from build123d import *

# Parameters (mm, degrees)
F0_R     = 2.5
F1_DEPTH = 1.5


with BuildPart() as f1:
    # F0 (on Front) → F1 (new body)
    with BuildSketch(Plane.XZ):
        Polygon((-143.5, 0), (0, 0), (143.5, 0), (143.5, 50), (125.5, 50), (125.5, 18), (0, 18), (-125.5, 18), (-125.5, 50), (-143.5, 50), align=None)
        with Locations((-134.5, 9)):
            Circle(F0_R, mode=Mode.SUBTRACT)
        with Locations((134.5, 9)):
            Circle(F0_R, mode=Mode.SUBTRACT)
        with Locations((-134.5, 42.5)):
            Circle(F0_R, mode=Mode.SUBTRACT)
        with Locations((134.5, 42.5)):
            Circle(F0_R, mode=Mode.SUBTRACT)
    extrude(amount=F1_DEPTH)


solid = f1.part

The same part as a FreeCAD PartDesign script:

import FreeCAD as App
import Part
import Sketcher

V = App.Vector
Q = App.Units.Quantity


def add_polygon(sketch, points):
    """Adds a closed chain of lines whose ends are joined by coincident constraints."""
    first, n = sketch.GeometryCount, len(points)
    for a, b in zip(points, points[1:] + points[:1]):
        sketch.addGeometry(Part.LineSegment(App.Vector(*a, 0), App.Vector(*b, 0)), False)
    for i in range(n):
        sketch.addConstraint(Sketcher.Constraint("Coincident", first + i, 2, first + (i + 1) % n, 1))

doc = App.newDocument("Part")
params = doc.addObject("Spreadsheet::Sheet", "Params")
for row, (alias, value) in enumerate([
    ("sketch1_diameter", "5 mm"),
    ("sketch1_width", "287 mm"),
    ("sketch1_width2", "18 mm"),
    ("sketch1_height", "50 mm"),
    ("sketch1_height2", "32 mm"),
    ("pad1_length", "1.5 mm"),
], start=1):
    params.set(f"A{row}", alias)
    params.set(f"B{row}", "=" + value)
    params.setAlias(f"B{row}", alias)

body = doc.addObject("PartDesign::Body", "Body")

sketch1 = body.newObject("Sketcher::SketchObject", "Sketch")
sketch1.AttachmentSupport = (doc.getObject("XZ_Plane"), [""])
sketch1.MapMode = "FlatFace"
add_polygon(sketch1, [(-143.5, 0), (143.5, 0), (143.5, 50), (125.5, 50), (125.5, 18), (-125.5, 18), (-125.5, 50), (-143.5, 50)])
sketch1.addGeometry(Part.Circle(V(-134.5, 9, 0), V(0, 0, 1), 2.5), False)
sketch1.addGeometry(Part.Circle(V(134.5, 9, 0), V(0, 0, 1), 2.5), False)
sketch1.addGeometry(Part.Circle(V(-134.5, 42.5, 0), V(0, 0, 1), 2.5), False)
sketch1.addGeometry(Part.Circle(V(134.5, 42.5, 0), V(0, 0, 1), 2.5), False)
sketch1.addConstraint(Sketcher.Constraint("Horizontal", 0))
sketch1.addConstraint(Sketcher.Constraint("Vertical", 1))
sketch1.addConstraint(Sketcher.Constraint("Horizontal", 2))
sketch1.addConstraint(Sketcher.Constraint("Vertical", 3))
sketch1.addConstraint(Sketcher.Constraint("Horizontal", 4))
sketch1.addConstraint(Sketcher.Constraint("Vertical", 5))
sketch1.addConstraint(Sketcher.Constraint("Horizontal", 6))
sketch1.addConstraint(Sketcher.Constraint("Vertical", 7))
sketch1.addConstraint(Sketcher.Constraint("Equal", 8, 9))
sketch1.addConstraint(Sketcher.Constraint("Equal", 9, 10))
sketch1.addConstraint(Sketcher.Constraint("Equal", 10, 11))
sketch1.addConstraint(Sketcher.Constraint("Symmetric", 0, 2, 7, 2, -1, 1))
sketch1.addConstraint(Sketcher.Constraint("Symmetric", 8, 3, 9, 3, -2))
sketch1.addConstraint(Sketcher.Constraint("Symmetric", 10, 3, 11, 3, -2))
sketch1.addConstraint(Sketcher.Constraint("Symmetric", 2, 2, 5, 2, -2))
sketch1.addConstraint(Sketcher.Constraint("Vertical", 8, 3, 10, 3))
sketch1.addConstraint(Sketcher.Constraint("Diameter", 8, Q("5 mm")))
sketch1.addConstraint(Sketcher.Constraint("DistanceX", 0, 1, 0, 2, Q("287 mm")))
sketch1.addConstraint(Sketcher.Constraint("DistanceX", 2, 2, 2, 1, Q("18 mm")))
sketch1.addConstraint(Sketcher.Constraint("DistanceY", 1, 1, 1, 2, Q("50 mm")))
sketch1.addConstraint(Sketcher.Constraint("DistanceY", 3, 2, 3, 1, Q("32 mm")))
sketch1.addConstraint(Sketcher.Constraint("DistanceY", -1, 1, 8, 3, Q("9 mm")))
sketch1.addConstraint(Sketcher.Constraint("DistanceX", 8, 3, 9, 3, Q("269 mm")))
sketch1.addConstraint(Sketcher.Constraint("DistanceY", -1, 1, 10, 3, Q("42.5 mm")))
sketch1.setExpression("Constraints[24]", "Params.sketch1_diameter")
sketch1.setExpression("Constraints[25]", "Params.sketch1_width")
sketch1.setExpression("Constraints[26]", "Params.sketch1_width2")
sketch1.setExpression("Constraints[27]", "Params.sketch1_height")
sketch1.setExpression("Constraints[28]", "Params.sketch1_height2")
pad1 = body.newObject("PartDesign::Pad", "Pad")
pad1.Profile = sketch1
pad1.setExpression("Length", "Params.pad1_length")

doc.recompute()
